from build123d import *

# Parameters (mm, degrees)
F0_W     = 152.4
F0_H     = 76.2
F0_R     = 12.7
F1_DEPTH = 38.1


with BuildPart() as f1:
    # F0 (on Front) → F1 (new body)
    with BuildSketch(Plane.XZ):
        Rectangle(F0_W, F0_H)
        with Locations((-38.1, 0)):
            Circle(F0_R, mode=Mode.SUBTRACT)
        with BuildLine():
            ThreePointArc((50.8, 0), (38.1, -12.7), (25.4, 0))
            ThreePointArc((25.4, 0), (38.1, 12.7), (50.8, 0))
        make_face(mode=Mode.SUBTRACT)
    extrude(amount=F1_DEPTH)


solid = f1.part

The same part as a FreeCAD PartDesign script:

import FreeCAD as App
import Part
import Sketcher

V = App.Vector
Q = App.Units.Quantity

doc = App.newDocument("Part")
body = doc.addObject("PartDesign::Body", "Body")

sketch1 = body.newObject("Sketcher::SketchObject", "Sketch")
sketch1.AttachmentSupport = (doc.getObject("XZ_Plane"), [""])
sketch1.MapMode = "FlatFace"
sketch1.addGeometry([
    Part.LineSegment(V(-76, 38, 0), V(-76, -38, 0)),
    Part.LineSegment(V(-76, -38, 0), V(76, -38, 0)),
    Part.LineSegment(V(76, -38, 0), V(76, 38, 0)),
    Part.LineSegment(V(76, 38, 0), V(-76, 38, 0)),
    Part.Circle(V(-38, 0, 0), V(0, 0, 1), 13),
    Part.Circle(V(38, 0, 0), V(0, 0, 1), 13),
], False)
sketch1.addConstraint([
    Sketcher.Constraint("Coincident", 0, 2, 1, 1),
    Sketcher.Constraint("Coincident", 1, 2, 2, 1),
    Sketcher.Constraint("Coincident", 2, 2, 3, 1),
    Sketcher.Constraint("Coincident", 3, 2, 0, 1),
    Sketcher.Constraint("Vertical", 0),
    Sketcher.Constraint("Horizontal", 1),
    Sketcher.Constraint("Vertical", 2),
    Sketcher.Constraint("Horizontal", 3),
    Sketcher.Constraint("Equal", 4, 5),
    Sketcher.Constraint("Symmetric", 4, 3, 5, 3, -1, 1),
    Sketcher.Constraint("Symmetric", 0, 2, 2, 2, -1, 1),
    Sketcher.Constraint("PointOnObject", 4, 3, -1),
    Sketcher.Constraint("Diameter", 4, Q("1 in")),
    Sketcher.Constraint("DistanceX", 1, 1, 1, 2, Q("6 in")),
    Sketcher.Constraint("DistanceY", 0, 2, 0, 1, Q("3 in")),
    Sketcher.Constraint("DistanceX", 4, 3, 5, 3, Q("3 in")),
])
pad1 = body.newObject("PartDesign::Pad", "Pad")
pad1.Profile = sketch1
pad1.Length = Q("1.5 in")

doc.recompute()
